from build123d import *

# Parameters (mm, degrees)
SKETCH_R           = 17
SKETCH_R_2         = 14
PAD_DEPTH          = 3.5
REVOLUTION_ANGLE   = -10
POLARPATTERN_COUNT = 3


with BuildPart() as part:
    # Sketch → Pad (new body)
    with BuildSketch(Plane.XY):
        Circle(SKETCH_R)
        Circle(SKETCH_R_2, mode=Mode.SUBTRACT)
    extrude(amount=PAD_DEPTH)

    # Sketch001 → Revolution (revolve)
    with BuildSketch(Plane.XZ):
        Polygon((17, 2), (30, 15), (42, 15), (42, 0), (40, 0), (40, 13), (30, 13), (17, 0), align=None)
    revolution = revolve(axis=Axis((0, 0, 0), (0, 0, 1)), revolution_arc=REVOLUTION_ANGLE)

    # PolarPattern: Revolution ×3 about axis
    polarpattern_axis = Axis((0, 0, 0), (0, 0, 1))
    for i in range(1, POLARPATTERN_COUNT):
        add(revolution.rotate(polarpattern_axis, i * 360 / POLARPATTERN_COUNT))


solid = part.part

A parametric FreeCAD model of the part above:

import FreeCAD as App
import Part
import Sketcher

V = App.Vector
Q = App.Units.Quantity


def add_polygon(sketch, points):
    """Adds a closed chain of lines whose ends are joined by coincident constraints."""
    first, n = sketch.GeometryCount, len(points)
    for a, b in zip(points, points[1:] + points[:1]):
        sketch.addGeometry(Part.LineSegment(App.Vector(*a, 0), App.Vector(*b, 0)), False)
    for i in range(n):
        sketch.addConstraint(Sketcher.Constraint("Coincident", first + i, 2, first + (i + 1) % n, 1))

doc = App.newDocument("Part")
params = doc.addObject("Spreadsheet::Sheet", "Params")
for row, (alias, value) in enumerate([
    ("sketch1_diameter", "34 mm"),
    ("sketch1_diameter2", "28 mm"),
    ("pad1_length", "3.5 mm"),
    ("sketch2_width", "10 mm"),
    ("sketch2_width2", "2 mm"),
    ("sketch2_height", "13 mm"),
    ("revolution_angle", "10 deg"),
], start=1):
    params.set(f"A{row}", alias)
    params.set(f"B{row}", "=" + value)
    params.setAlias(f"B{row}", alias)

body = doc.addObject("PartDesign::Body", "Body")

sketch1 = body.newObject("Sketcher::SketchObject", "Sketch")
sketch1.AttachmentSupport = (doc.getObject("XY_Plane"), [""])
sketch1.MapMode = "FlatFace"
sketch1.addGeometry(Part.Circle(V(0, 0, 0), V(0, 0, 1), 17), False)
sketch1.addGeometry(Part.Circle(V(0, 0, 0), V(0, 0, 1), 14), False)
sketch1.addConstraint(Sketcher.Constraint("Coincident", 0, 3, -1, 1))
sketch1.addConstraint(Sketcher.Constraint("Coincident", 1, 3, -1, 1))
sketch1.addConstraint(Sketcher.Constraint("Diameter", 0, Q("34 mm")))
sketch1.addConstraint(Sketcher.Constraint("Diameter", 1, Q("28 mm")))
sketch1.setExpression("Constraints[2]", "Params.sketch1_diameter")
sketch1.setExpression("Constraints[3]", "Params.sketch1_diameter2")
pad1 = body.newObject("PartDesign::Pad", "Pad")
pad1.Profile = sketch1
pad1.setExpression("Length", "Params.pad1_length")

sketch2 = body.newObject("Sketcher::SketchObject", "Sketch001")
sketch2.AttachmentSupport = (doc.getObject("XZ_Plane"), [""])
sketch2.MapMode = "FlatFace"
add_polygon(sketch2, [(30, 15), (17, 2), (17, 0), (30, 13), (40, 13), (40, 0), (42, 0), (42, 15)])
sketch2.addConstraint(Sketcher.Constraint("Vertical", 1))
sketch2.addConstraint(Sketcher.Constraint("Horizontal", 3))
sketch2.addConstraint(Sketcher.Constraint("Vertical", 4))
sketch2.addConstraint(Sketcher.Constraint("Horizontal", 5))
sketch2.addConstraint(Sketcher.Constraint("Vertical", 6))
sketch2.addConstraint(Sketcher.Constraint("Horizontal", 7))
sketch2.addConstraint(Sketcher.Constraint("PointOnObject", 1, 2, -1))
sketch2.addConstraint(Sketcher.Constraint("PointOnObject", 4, 2, -1))
sketch2.addConstraint(Sketcher.Constraint("Parallel", 0, 2))
sketch2.addConstraint(Sketcher.Constraint("Vertical", 2, 2, 7, 2))
sketch2.addConstraint(Sketcher.Constraint("Equal", 5, 1))
sketch2.addConstraint(Sketcher.Constraint("DistanceX", 3, 1, 3, 2, Q("10 mm")))
sketch2.addConstraint(Sketcher.Constraint("DistanceX", 5, 1, 5, 2, Q("2 mm")))
sketch2.addConstraint(Sketcher.Constraint("DistanceY", 4, 2, 4, 1, Q("13 mm")))
sketch2.addConstraint(Sketcher.Constraint("Angle", 0, Q("-135 deg")))
sketch2.addConstraint(Sketcher.Constraint("DistanceX", -1, 1, 0, 2, Q("17 mm")))
sketch2.setExpression("Constraints[19]", "Params.sketch2_width")
sketch2.setExpression("Constraints[20]", "Params.sketch2_width2")
sketch2.setExpression("Constraints[21]", "Params.sketch2_height")
revolution = body.newObject("PartDesign::Revolution", "Revolution")
revolution.Profile = sketch2
revolution.ReferenceAxis = (sketch2, ["V_Axis"])
revolution.setExpression("Angle", "Params.revolution_angle")
revolution.Reversed = True
doc.recompute()

polarpattern = body.newObject("PartDesign::PolarPattern", "PolarPattern")
polarpattern.Originals = [revolution]
polarpattern.Axis = (doc.getObject("Z_Axis"), [""])
polarpattern.Angle = 360
polarpattern.Occurrences = 3
body.Tip = polarpattern

doc.recompute()
